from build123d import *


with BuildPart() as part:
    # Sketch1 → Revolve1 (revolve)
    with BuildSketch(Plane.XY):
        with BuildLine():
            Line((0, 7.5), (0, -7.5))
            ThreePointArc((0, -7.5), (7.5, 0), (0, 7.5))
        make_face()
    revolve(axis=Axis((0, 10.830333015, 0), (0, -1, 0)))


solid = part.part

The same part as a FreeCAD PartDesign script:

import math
import FreeCAD as App
import Part
import Sketcher

V = App.Vector
Q = App.Units.Quantity

doc = App.newDocument("Part")
body = doc.addObject("PartDesign::Body", "Body")

# Sketch on XY plane
sketch1 = body.newObject("Sketcher::SketchObject", "Sketch")
sketch1.AttachmentSupport = (doc.getObject("XY_Plane"), [""])
sketch1.MapMode = "FlatFace"
sketch1.addGeometry([
    Part.LineSegment(V(0, 7.5, 0), V(0, -7.5, 0)),
    Part.ArcOfCircle(Part.Circle(V(0, 0, 0), V(0, 0, 1), 7.5), math.radians(-90), math.radians(90)),
], False)
sketch1.addConstraint([
    Sketcher.Constraint("Coincident", 0, 1, 1, 2),
    Sketcher.Constraint("Coincident", 1, 1, 0, 2),
    Sketcher.Constraint("Vertical", 0),
    Sketcher.Constraint("Coincident", 1, 3, -1, 1),
    Sketcher.Constraint("PointOnObject", 0, 1, -2),
    Sketcher.Constraint("Radius", 1, Q("7.5 mm")),
])
revolution = body.newObject("PartDesign::Revolution", "Revolution")
revolution.Profile = sketch1
revolution.ReferenceAxis = (sketch1, ["V_Axis"])
revolution.Angle = 360

doc.recompute()
